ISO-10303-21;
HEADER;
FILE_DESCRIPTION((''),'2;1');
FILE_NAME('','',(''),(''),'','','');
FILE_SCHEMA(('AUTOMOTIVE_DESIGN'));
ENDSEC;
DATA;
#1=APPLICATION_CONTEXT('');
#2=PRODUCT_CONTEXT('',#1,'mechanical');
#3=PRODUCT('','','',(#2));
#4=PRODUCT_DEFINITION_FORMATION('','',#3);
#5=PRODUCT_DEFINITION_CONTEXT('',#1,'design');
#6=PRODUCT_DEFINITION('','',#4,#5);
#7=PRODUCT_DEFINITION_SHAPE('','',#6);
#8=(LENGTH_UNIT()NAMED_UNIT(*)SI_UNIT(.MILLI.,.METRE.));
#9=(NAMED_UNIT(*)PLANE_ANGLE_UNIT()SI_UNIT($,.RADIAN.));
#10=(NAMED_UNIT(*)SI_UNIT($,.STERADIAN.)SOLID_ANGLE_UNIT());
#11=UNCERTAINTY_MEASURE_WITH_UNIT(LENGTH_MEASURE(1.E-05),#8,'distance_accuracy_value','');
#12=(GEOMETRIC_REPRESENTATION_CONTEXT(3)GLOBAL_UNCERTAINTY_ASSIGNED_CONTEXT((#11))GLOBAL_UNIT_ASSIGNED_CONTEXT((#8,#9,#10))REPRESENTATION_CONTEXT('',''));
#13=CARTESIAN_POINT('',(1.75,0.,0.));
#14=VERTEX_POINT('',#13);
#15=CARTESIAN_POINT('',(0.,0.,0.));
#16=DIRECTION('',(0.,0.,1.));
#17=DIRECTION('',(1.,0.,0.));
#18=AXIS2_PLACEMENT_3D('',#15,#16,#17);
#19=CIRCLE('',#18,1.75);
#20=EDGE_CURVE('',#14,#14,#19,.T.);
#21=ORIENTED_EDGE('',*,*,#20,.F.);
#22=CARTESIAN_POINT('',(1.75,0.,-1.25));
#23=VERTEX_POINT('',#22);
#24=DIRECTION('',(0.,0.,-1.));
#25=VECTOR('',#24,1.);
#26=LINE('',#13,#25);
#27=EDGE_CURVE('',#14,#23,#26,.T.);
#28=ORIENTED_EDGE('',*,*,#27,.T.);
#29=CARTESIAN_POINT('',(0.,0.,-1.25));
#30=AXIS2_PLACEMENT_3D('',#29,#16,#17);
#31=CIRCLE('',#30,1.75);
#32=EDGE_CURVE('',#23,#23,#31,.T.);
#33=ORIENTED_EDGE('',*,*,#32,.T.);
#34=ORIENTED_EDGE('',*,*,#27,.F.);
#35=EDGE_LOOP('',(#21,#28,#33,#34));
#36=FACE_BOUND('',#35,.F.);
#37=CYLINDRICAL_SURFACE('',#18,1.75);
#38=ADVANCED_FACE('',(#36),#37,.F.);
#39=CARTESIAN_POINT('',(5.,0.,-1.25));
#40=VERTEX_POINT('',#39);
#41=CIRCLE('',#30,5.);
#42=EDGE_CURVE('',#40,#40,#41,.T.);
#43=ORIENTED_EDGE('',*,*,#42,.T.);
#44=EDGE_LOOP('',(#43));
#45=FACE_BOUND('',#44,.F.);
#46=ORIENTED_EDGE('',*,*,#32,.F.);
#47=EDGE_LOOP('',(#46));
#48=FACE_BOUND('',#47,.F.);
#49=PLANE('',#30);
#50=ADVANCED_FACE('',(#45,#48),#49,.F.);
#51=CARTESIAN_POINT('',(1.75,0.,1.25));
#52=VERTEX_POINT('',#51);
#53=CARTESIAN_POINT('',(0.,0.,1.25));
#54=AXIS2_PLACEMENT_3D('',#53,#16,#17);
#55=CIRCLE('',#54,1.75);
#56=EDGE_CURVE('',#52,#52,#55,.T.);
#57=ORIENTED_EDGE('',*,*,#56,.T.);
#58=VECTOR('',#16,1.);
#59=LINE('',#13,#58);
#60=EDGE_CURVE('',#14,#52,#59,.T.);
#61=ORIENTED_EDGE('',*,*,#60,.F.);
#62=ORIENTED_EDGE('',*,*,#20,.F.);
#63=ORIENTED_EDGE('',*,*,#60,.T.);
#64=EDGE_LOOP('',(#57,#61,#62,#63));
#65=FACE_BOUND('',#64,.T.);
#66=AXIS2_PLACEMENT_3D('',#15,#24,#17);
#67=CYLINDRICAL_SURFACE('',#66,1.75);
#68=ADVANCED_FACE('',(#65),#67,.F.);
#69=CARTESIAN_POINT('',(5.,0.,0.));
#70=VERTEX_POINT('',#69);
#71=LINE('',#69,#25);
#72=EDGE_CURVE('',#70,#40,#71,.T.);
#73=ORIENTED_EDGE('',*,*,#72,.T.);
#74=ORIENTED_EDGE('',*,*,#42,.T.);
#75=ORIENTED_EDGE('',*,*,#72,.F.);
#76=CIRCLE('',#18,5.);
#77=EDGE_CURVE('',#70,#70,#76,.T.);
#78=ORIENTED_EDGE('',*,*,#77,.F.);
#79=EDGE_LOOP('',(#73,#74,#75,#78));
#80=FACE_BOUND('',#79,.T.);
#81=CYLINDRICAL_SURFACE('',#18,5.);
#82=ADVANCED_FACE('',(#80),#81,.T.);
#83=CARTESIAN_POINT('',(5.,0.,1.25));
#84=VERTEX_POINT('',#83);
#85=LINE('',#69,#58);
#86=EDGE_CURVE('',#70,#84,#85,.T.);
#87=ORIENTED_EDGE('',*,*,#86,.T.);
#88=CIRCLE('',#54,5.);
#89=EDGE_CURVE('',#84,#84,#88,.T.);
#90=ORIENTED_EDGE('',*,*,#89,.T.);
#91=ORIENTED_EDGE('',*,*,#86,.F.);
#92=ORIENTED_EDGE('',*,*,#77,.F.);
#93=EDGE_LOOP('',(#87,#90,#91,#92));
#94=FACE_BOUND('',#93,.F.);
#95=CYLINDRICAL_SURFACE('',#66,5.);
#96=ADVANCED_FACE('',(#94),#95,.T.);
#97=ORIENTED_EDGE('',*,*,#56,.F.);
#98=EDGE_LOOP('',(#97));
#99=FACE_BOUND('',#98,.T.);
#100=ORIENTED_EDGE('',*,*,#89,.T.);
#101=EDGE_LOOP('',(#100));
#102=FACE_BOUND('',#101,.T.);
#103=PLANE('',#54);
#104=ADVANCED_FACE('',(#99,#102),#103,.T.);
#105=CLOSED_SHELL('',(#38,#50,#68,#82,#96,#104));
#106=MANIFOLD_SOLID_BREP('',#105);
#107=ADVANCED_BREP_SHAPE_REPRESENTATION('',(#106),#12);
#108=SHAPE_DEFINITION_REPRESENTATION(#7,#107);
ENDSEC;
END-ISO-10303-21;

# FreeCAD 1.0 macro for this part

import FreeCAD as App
import Part
import Sketcher

V = App.Vector

doc = App.newDocument("Part")
params = doc.addObject("Spreadsheet::Sheet", "Params")
for row, (alias, value) in enumerate([
    ("sketch1_diameter", "10 mm"),
    ("sketch1_diameter2", "3.5 mm"),
    ("pad1_length", "2.5 mm"),
], start=1):
    params.set(f"A{row}", alias)
    params.set(f"B{row}", "=" + value)
    params.setAlias(f"B{row}", alias)

body = doc.addObject("PartDesign::Body", "Body")

sketch1 = body.newObject("Sketcher::SketchObject", "Sketch")
sketch1.AttachmentSupport = (doc.getObject("XY_Plane"), [""])
sketch1.MapMode = "FlatFace"
sketch1.addGeometry([
    Part.Circle(V(0, 0, 0), V(0, 0, 1), 5),
    Part.Circle(V(0, 0, 0), V(0, 0, 1), 1.8),
], False)
sketch1.addConstraint([
    Sketcher.Constraint("Coincident", 0, 3, -1, 1),
    Sketcher.Constraint("Coincident", 1, 3, -1, 1),
    Sketcher.Constraint("Diameter", 0, 10.0),
    Sketcher.Constraint("Diameter", 1, 3.5),
])
sketch1.setExpression("Constraints[2]", "Params.sketch1_diameter")
sketch1.setExpression("Constraints[3]", "Params.sketch1_diameter2")
pad1 = body.newObject("PartDesign::Pad", "Pad")
pad1.Profile = sketch1
pad1.setExpression("Length", "Params.pad1_length")
pad1.Midplane = True

doc.recompute()
